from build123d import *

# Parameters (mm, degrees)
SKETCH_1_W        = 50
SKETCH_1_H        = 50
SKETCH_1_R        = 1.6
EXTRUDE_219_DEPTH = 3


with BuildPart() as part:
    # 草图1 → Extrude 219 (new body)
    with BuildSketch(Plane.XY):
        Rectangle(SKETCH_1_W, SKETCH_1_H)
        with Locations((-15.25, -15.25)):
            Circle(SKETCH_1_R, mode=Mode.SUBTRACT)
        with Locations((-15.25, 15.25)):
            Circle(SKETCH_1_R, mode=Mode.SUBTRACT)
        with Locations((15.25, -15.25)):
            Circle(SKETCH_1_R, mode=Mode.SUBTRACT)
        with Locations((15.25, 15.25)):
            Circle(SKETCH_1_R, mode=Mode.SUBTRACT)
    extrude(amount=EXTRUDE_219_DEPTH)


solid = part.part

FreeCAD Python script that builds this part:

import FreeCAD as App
import Part
import Sketcher

V = App.Vector
Q = App.Units.Quantity

doc = App.newDocument("Part")
params = doc.addObject("Spreadsheet::Sheet", "Params")
for row, (alias, value) in enumerate([
    ("sketch1_diameter", "3.2 mm"),
    ("sketch1_width", "50 mm"),
    ("pad1_length", "3 mm"),
], start=1):
    params.set(f"A{row}", alias)
    params.set(f"B{row}", "=" + value)
    params.setAlias(f"B{row}", alias)

body = doc.addObject("PartDesign::Body", "Body")

# Sketch on XY plane
sketch1 = body.newObject("Sketcher::SketchObject", "Sketch")
sketch1.AttachmentSupport = (doc.getObject("XY_Plane"), [""])
sketch1.MapMode = "FlatFace"
sketch1.addGeometry([
    Part.LineSegment(V(-25, 25, 0), V(-25, -25, 0)),  # 0
    Part.LineSegment(V(-25, -25, 0), V(25, -25, 0)),  # 1
    Part.LineSegment(V(25, -25, 0), V(25, 25, 0)),  # 2
    Part.LineSegment(V(25, 25, 0), V(-25, 25, 0)),  # 3
    Part.Circle(V(-15.25, -15.25, 0), V(0, 0, 1), 1.6),  # 4
    Part.Circle(V(15.25, -15.25, 0), V(0, 0, 1), 1.6),  # 5
    Part.Circle(V(-15.25, 15.25, 0), V(0, 0, 1), 1.6),  # 6
    Part.Circle(V(15.25, 15.25, 0), V(0, 0, 1), 1.6),  # 7
], False)
sketch1.addConstraint([
    Sketcher.Constraint("Coincident", 0, 2, 1, 1),
    Sketcher.Constraint("Coincident", 1, 2, 2, 1),
    Sketcher.Constraint("Coincident", 2, 2, 3, 1),
    Sketcher.Constraint("Coincident", 3, 2, 0, 1),
    Sketcher.Constraint("Vertical", 0),
    Sketcher.Constraint("Horizontal", 1),
    Sketcher.Constraint("Vertical", 2),
    Sketcher.Constraint("Horizontal", 3),
    Sketcher.Constraint("Equal", 4, 5),
    Sketcher.Constraint("Equal", 5, 6),
    Sketcher.Constraint("Equal", 6, 7),
    Sketcher.Constraint("Symmetric", 5, 3, 6, 3, -1, 1),
    Sketcher.Constraint("Symmetric", 4, 3, 7, 3, -1, 1),
    Sketcher.Constraint("Symmetric", 0, 2, 2, 2, -1, 1),
    Sketcher.Constraint("Symmetric", 4, 3, 5, 3, -2),
    Sketcher.Constraint("Equal", 3, 0),
    Sketcher.Constraint("Diameter", 4, Q("3.2 mm")),
    Sketcher.Constraint("DistanceX", 1, 1, 1, 2, Q("50 mm")),
    Sketcher.Constraint("DistanceX", 4, 3, 5, 3, Q("30.5 mm")),
    Sketcher.Constraint("DistanceY", 4, 3, 6, 3, Q("30.5 mm")),
])
sketch1.setExpression("Constraints[16]", "Params.sketch1_diameter")
sketch1.setExpression("Constraints[17]", "Params.sketch1_width")
pad1 = body.newObject("PartDesign::Pad", "Pad")
pad1.Profile = sketch1
pad1.setExpression("Length", "Params.pad1_length")

doc.recompute()
